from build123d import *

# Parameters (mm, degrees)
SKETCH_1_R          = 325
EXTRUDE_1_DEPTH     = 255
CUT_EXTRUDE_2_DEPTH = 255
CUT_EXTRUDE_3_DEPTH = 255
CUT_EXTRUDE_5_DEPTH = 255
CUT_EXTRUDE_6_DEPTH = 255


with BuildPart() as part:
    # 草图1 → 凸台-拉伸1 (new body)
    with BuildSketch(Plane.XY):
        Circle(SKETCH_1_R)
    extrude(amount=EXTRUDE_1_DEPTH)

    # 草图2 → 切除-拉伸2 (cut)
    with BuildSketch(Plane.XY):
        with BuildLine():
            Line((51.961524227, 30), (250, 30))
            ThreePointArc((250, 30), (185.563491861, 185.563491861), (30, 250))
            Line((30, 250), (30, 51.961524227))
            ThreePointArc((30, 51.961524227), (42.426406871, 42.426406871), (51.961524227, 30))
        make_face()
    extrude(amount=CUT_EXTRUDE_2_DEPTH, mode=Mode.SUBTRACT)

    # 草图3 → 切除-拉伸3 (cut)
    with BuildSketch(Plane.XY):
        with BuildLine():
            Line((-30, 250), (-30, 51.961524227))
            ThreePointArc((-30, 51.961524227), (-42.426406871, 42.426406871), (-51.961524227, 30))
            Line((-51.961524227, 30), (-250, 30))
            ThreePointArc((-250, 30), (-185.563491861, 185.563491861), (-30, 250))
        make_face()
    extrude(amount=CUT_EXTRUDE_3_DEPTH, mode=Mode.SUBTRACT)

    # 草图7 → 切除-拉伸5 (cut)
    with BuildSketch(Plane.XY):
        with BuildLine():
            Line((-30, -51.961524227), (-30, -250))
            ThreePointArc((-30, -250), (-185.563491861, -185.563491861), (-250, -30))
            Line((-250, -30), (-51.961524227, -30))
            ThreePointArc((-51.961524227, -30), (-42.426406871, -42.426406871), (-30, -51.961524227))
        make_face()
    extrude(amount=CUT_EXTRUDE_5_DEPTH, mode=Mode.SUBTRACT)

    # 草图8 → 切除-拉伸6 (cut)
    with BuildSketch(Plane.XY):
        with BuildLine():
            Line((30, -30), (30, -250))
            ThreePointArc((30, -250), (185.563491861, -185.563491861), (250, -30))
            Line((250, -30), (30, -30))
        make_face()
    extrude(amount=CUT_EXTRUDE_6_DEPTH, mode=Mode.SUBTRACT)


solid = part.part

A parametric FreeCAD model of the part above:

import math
import FreeCAD as App
import Part
import Sketcher
from FreeCAD import Vector
Q = App.Units.Quantity

doc = App.newDocument("Part")
params = doc.addObject("Spreadsheet::Sheet", "Params")
for row, (alias, value) in enumerate([
    ("sketch1_diameter", "650 mm"),
    ("pad1_length", "255 mm"),
    ("sketch2_radius", "220 mm"),
    ("sketch2_radius2", "60 mm"),
    ("pocket1_length", "255 mm"),
    ("sketch3_radius", "220 mm"),
    ("sketch3_radius2", "60 mm"),
    ("pocket2_length", "255 mm"),
    ("sketch4_radius", "60 mm"),
    ("sketch4_radius2", "220 mm"),
    ("pocket3_length", "255 mm"),
    ("sketch5_radius", "220 mm"),
    ("pocket4_length", "255 mm"),
], start=1):
    params.set(f"A{row}", alias)
    params.set(f"B{row}", "=" + value)
    params.setAlias(f"B{row}", alias)

body = doc.addObject("PartDesign::Body", "Body")

# Sketch on XY plane
sketch1 = body.newObject("Sketcher::SketchObject", "Sketch")
sketch1.AttachmentSupport = (doc.getObject("XY_Plane"), [""])
sketch1.MapMode = "FlatFace"
sketch1.addGeometry(Part.Circle(Vector(0, 0, 0), Vector(0, 0, 1), 325), False)
sketch1.addConstraint([
    Sketcher.Constraint("Coincident", 0, 3, -1, 1),
    Sketcher.Constraint("Diameter", 0, Q("650 mm")),
])
sketch1.setExpression("Constraints[1]", "Params.sketch1_diameter")
pad1 = body.newObject("PartDesign::Pad", "Pad")
pad1.Profile = sketch1
pad1.setExpression("Length", "Params.pad1_length")

# Sketch on XY plane
sketch2 = body.newObject("Sketcher::SketchObject", "Sketch001")
sketch2.AttachmentSupport = (doc.getObject("XY_Plane"), [""])
sketch2.MapMode = "FlatFace"
sketch2.addGeometry([
    Part.LineSegment(Vector(52, 30, 0), Vector(250, 30, 0)),
    Part.ArcOfCircle(Part.Circle(Vector(30, 30, 0), Vector(0, 0, 1), 220), math.radians(0), math.radians(90)),
    Part.LineSegment(Vector(30, 250, 0), Vector(30, 52, 0)),
    Part.ArcOfCircle(Part.Circle(Vector(0, 0, 0), Vector(0, 0, 1), 60), math.radians(30), math.radians(60)),
], False)
sketch2.addConstraint([
    Sketcher.Constraint("Coincident", 0, 2, 1, 1),
    Sketcher.Constraint("Coincident", 1, 2, 2, 1),
    Sketcher.Constraint("Coincident", 2, 2, 3, 2),
    Sketcher.Constraint("Coincident", 3, 1, 0, 1),
    Sketcher.Constraint("Horizontal", 0),
    Sketcher.Constraint("Vertical", 2),
    Sketcher.Constraint("Coincident", 3, 3, -1, 1),
    Sketcher.Constraint("Horizontal", 1, 3, 0, 2),
    Sketcher.Constraint("Equal", 0, 2),
    Sketcher.Constraint("Radius", 1, Q("220 mm")),
    Sketcher.Constraint("Radius", 3, Q("60 mm")),
    Sketcher.Constraint("DistanceX", -1, 1, 1, 3, Q("30 mm")),
    Sketcher.Constraint("DistanceY", -1, 1, 1, 3, Q("30 mm")),
])
sketch2.setExpression("Constraints[9]", "Params.sketch2_radius")
sketch2.setExpression("Constraints[10]", "Params.sketch2_radius2")
pocket1 = body.newObject("PartDesign::Pocket", "Pocket")
pocket1.Profile = sketch2
pocket1.setExpression("Length", "Params.pocket1_length")
pocket1.Reversed = True

# Sketch on XY plane
sketch3 = body.newObject("Sketcher::SketchObject", "Sketch002")
sketch3.AttachmentSupport = (doc.getObject("XY_Plane"), [""])
sketch3.MapMode = "FlatFace"
sketch3.addGeometry([
    Part.LineSegment(Vector(-30, 52, 0), Vector(-30, 250, 0)),
    Part.ArcOfCircle(Part.Circle(Vector(-30, 30, 0), Vector(0, 0, 1), 220), math.radians(90), math.radians(180)),
    Part.LineSegment(Vector(-250, 30, 0), Vector(-52, 30, 0)),
    Part.ArcOfCircle(Part.Circle(Vector(0, 0, 0), Vector(0, 0, 1), 60), math.radians(120), math.radians(150)),
], False)
sketch3.addConstraint([
    Sketcher.Constraint("Coincident", 0, 2, 1, 1),
    Sketcher.Constraint("Coincident", 1, 2, 2, 1),
    Sketcher.Constraint("Coincident", 2, 2, 3, 2),
    Sketcher.Constraint("Coincident", 3, 1, 0, 1),
    Sketcher.Constraint("Vertical", 0),
    Sketcher.Constraint("Horizontal", 2),
    Sketcher.Constraint("Coincident", 3, 3, -1, 1),
    Sketcher.Constraint("Vertical", 1, 3, 0, 2),
    Sketcher.Constraint("Equal", 2, 0),
    Sketcher.Constraint("Radius", 1, Q("220 mm")),
    Sketcher.Constraint("Radius", 3, Q("60 mm")),
    Sketcher.Constraint("DistanceX", 1, 3, -1, 1, Q("30 mm")),
    Sketcher.Constraint("DistanceY", -1, 1, 1, 3, Q("30 mm")),
])
sketch3.setExpression("Constraints[9]", "Params.sketch3_radius")
sketch3.setExpression("Constraints[10]", "Params.sketch3_radius2")
pocket2 = body.newObject("PartDesign::Pocket", "Pocket001")
pocket2.Profile = sketch3
pocket2.setExpression("Length", "Params.pocket2_length")
pocket2.Reversed = True

# Sketch on XY plane
sketch4 = body.newObject("Sketcher::SketchObject", "Sketch003")
sketch4.AttachmentSupport = (doc.getObject("XY_Plane"), [""])
sketch4.MapMode = "FlatFace"
sketch4.addGeometry([
    Part.LineSegment(Vector(-30, -250, 0), Vector(-30, -52, 0)),
    Part.ArcOfCircle(Part.Circle(Vector(0, 0, 0), Vector(0, 0, 1), 60), math.radians(-150), math.radians(-120)),
    Part.LineSegment(Vector(-52, -30, 0), Vector(-250, -30, 0)),
    Part.ArcOfCircle(Part.Circle(Vector(-30, -30, 0), Vector(0, 0, 1), 220), math.radians(180), math.radians(270)),
], False)
sketch4.addConstraint([
    Sketcher.Constraint("Coincident", 0, 2, 1, 2),
    Sketcher.Constraint("Coincident", 1, 1, 2, 1),
    Sketcher.Constraint("Coincident", 2, 2, 3, 1),
    Sketcher.Constraint("Coincident", 3, 2, 0, 1),
    Sketcher.Constraint("Vertical", 0),
    Sketcher.Constraint("Horizontal", 2),
    Sketcher.Constraint("Coincident", 1, 3, -1, 1),
    Sketcher.Constraint("Horizontal", 3, 3, 1, 1),
    Sketcher.Constraint("Vertical", 3, 3, 0, 2),
    Sketcher.Constraint("Equal", 2, 0),
    Sketcher.Constraint("Radius", 1, Q("60 mm")),
    Sketcher.Constraint("Radius", 3, Q("220 mm")),
    Sketcher.Constraint("DistanceX", 3, 3, -1, 1, Q("30 mm")),
])
sketch4.setExpression("Constraints[10]", "Params.sketch4_radius")
sketch4.setExpression("Constraints[11]", "Params.sketch4_radius2")
pocket3 = body.newObject("PartDesign::Pocket", "Pocket002")
pocket3.Profile = sketch4
pocket3.setExpression("Length", "Params.pocket3_length")
pocket3.Reversed = True

# Sketch on XY plane
sketch5 = body.newObject("Sketcher::SketchObject", "Sketch004")
sketch5.AttachmentSupport = (doc.getObject("XY_Plane"), [""])
sketch5.MapMode = "FlatFace"
sketch5.addGeometry([
    Part.LineSegment(Vector(30, -30, 0), Vector(30, -250, 0)),
    Part.ArcOfCircle(Part.Circle(Vector(30, -30, 0), Vector(0, 0, 1), 220), math.radians(-90), math.radians(0)),
    Part.LineSegment(Vector(250, -30, 0), Vector(30, -30, 0)),
], False)
sketch5.addConstraint([
    Sketcher.Constraint("Coincident", 0, 2, 1, 1),
    Sketcher.Constraint("Coincident", 1, 2, 2, 1),
    Sketcher.Constraint("Coincident", 2, 2, 0, 1),
    Sketcher.Constraint("Vertical", 0),
    Sketcher.Constraint("Horizontal", 2),
    Sketcher.Constraint("Coincident", 2, 2, 1, 3),
    Sketcher.Constraint("Radius", 1, Q("220 mm")),
    Sketcher.Constraint("DistanceX", -1, 1, 1, 3, Q("30 mm")),
    Sketcher.Constraint("DistanceY", 1, 3, -1, 1, Q("30 mm")),
])
sketch5.setExpression("Constraints[6]", "Params.sketch5_radius")
pocket4 = body.newObject("PartDesign::Pocket", "Pocket003")
pocket4.Profile = sketch5
pocket4.setExpression("Length", "Params.pocket4_length")
pocket4.Reversed = True

doc.recompute()
